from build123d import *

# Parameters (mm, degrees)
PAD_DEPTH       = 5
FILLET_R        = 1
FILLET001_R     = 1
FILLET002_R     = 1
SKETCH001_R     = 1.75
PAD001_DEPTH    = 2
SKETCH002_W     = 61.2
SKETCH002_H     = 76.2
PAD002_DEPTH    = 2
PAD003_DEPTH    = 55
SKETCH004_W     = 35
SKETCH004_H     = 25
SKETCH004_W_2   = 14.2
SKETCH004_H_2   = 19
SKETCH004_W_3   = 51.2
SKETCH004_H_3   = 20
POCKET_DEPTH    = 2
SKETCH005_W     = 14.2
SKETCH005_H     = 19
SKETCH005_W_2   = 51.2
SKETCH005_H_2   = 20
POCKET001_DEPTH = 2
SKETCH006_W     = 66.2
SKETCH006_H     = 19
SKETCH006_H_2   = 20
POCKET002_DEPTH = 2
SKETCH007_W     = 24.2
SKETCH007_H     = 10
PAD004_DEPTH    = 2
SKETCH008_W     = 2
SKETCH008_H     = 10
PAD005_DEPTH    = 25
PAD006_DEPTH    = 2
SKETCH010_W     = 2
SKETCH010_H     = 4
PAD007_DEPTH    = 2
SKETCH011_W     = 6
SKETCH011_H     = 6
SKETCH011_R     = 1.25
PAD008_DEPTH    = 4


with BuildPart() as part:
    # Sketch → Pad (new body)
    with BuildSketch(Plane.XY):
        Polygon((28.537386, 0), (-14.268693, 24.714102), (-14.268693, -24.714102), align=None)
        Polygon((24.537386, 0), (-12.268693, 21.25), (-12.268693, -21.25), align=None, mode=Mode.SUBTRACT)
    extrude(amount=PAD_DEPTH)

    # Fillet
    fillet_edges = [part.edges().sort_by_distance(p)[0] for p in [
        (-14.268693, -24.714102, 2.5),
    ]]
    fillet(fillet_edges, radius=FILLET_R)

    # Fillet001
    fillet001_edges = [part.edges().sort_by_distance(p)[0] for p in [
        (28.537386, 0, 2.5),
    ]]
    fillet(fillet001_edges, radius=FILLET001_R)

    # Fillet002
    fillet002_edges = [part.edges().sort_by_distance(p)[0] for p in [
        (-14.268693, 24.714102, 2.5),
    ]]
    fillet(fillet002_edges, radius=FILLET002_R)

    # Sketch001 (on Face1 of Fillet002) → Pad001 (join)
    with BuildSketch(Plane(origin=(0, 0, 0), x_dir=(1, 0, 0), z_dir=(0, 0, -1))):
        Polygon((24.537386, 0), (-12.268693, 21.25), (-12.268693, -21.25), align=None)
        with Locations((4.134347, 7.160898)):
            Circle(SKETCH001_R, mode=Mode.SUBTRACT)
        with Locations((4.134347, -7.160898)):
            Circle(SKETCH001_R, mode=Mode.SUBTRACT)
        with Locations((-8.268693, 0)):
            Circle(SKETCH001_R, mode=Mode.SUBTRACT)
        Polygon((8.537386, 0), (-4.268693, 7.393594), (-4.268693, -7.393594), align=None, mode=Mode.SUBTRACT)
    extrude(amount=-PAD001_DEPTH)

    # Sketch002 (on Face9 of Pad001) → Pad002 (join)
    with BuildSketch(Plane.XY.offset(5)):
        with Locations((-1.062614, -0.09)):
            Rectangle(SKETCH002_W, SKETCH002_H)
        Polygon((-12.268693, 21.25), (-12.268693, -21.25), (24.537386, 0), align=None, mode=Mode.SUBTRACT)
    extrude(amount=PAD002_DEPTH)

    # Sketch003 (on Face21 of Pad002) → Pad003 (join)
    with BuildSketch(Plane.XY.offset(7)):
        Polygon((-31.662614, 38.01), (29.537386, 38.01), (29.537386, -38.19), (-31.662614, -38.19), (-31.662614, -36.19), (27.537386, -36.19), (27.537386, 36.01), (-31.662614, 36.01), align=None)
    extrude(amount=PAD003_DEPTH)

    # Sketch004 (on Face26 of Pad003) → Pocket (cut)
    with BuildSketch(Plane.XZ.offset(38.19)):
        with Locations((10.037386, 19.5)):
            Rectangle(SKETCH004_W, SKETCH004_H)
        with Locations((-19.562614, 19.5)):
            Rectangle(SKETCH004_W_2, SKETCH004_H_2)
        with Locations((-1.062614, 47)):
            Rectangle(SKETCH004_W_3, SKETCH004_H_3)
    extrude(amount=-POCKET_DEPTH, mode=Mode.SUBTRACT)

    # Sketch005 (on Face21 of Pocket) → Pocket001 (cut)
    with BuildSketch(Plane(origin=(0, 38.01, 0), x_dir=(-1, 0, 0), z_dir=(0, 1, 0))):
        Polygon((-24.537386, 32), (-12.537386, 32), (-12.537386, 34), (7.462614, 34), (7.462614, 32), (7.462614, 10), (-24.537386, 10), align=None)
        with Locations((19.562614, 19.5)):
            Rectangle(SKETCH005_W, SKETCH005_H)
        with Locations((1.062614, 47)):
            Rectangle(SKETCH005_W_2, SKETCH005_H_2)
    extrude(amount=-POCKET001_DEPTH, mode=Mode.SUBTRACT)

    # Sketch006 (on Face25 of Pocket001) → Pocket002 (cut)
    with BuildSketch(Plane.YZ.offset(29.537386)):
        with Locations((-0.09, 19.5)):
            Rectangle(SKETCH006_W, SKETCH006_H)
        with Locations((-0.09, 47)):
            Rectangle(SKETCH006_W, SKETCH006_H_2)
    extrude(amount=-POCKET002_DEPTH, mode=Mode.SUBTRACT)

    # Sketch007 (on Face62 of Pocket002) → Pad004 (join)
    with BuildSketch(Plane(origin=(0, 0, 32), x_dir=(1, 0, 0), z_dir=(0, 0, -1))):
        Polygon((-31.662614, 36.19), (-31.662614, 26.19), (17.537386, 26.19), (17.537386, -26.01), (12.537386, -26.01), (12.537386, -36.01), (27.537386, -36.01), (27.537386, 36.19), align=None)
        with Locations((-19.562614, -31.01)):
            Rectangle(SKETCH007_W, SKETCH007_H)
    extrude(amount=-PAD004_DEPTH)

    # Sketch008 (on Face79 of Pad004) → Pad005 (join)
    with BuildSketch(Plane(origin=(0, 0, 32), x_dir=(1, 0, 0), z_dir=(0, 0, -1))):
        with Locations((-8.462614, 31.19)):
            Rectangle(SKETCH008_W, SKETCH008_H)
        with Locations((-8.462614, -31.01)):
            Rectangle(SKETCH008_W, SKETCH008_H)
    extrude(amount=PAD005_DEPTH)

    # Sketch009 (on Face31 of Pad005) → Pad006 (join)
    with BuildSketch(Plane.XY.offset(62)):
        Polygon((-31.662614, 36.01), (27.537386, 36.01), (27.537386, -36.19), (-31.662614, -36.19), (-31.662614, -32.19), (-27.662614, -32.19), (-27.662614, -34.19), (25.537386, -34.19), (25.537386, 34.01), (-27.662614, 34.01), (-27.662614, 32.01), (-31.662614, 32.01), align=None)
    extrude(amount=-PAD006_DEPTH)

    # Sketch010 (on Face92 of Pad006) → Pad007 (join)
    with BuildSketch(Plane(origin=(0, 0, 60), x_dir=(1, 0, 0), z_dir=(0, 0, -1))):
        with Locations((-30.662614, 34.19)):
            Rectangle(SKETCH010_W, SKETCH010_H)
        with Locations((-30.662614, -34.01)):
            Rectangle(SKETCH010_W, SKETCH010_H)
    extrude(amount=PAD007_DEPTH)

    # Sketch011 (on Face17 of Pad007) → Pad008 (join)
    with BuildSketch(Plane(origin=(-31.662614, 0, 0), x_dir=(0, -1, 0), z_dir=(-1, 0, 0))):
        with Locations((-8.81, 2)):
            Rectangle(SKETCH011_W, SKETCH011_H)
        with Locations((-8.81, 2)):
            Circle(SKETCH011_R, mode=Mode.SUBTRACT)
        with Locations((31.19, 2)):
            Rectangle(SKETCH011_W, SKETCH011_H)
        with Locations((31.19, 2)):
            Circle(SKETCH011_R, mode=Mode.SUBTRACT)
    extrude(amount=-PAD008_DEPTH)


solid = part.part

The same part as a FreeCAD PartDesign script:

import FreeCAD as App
import Part
import Sketcher
from FreeCAD import Vector
Q = App.Units.Quantity


def edges_at(feature, points):
    """Names of the edges that pass closest to the given points."""
    edges = feature.Shape.Edges
    near = lambda p: min(range(len(edges)), key=lambda i: edges[i].distToShape(Part.Vertex(*p))[0])
    return sorted({f"Edge{near(p) + 1}" for p in points})

doc = App.newDocument("Part")
body = doc.addObject("PartDesign::Body", "Body")

# Sketch on XY plane
sketch1 = doc.addObject("Sketcher::SketchObject", "Sketch")
body.addObject(sketch1)
sketch1.AttachmentSupport = (doc.XY_Plane, [""])
sketch1.MapMode = "FlatFace"
sketch1.addGeometry(Part.LineSegment(Vector(29, 0, 0), Vector(-14, 25, 0)), False)
sketch1.addGeometry(Part.LineSegment(Vector(-14, 25, 0), Vector(-14, -25, 0)), False)
sketch1.addGeometry(Part.LineSegment(Vector(-14, -25, 0), Vector(29, 0, 0)), False)
sketch1.addGeometry(Part.LineSegment(Vector(-12, 21, 0), Vector(25, 0, 0)), False)
sketch1.addGeometry(Part.LineSegment(Vector(25, 0, 0), Vector(-12, -21, 0)), False)
sketch1.addGeometry(Part.LineSegment(Vector(-12, -21, 0), Vector(-12, 21, 0)), False)
sketch1.addConstraint(Sketcher.Constraint("Coincident", 0, 2, 1, 1))
sketch1.addConstraint(Sketcher.Constraint("Coincident", 1, 2, 2, 1))
sketch1.addConstraint(Sketcher.Constraint("Coincident", 2, 2, 0, 1))
sketch1.addConstraint(Sketcher.Constraint("Coincident", 3, 2, 4, 1))
sketch1.addConstraint(Sketcher.Constraint("Coincident", 4, 2, 5, 1))
sketch1.addConstraint(Sketcher.Constraint("Coincident", 5, 2, 3, 1))
sketch1.addConstraint(Sketcher.Constraint("Vertical", 1))
sketch1.addConstraint(Sketcher.Constraint("Vertical", 5))
sketch1.addConstraint(Sketcher.Constraint("PointOnObject", 2, 2, -1))
sketch1.addConstraint(Sketcher.Constraint("PointOnObject", 3, 2, -1))
sketch1.addConstraint(Sketcher.Constraint("Parallel", 0, 3))
sketch1.addConstraint(Sketcher.Constraint("Parallel", 2, 4))
sketch1.addConstraint(Sketcher.Constraint("Equal", 0, 2))
sketch1.addConstraint(Sketcher.Constraint("Angle", 0, Q("149.999999 deg")))
sketch1.addConstraint(Sketcher.Constraint("DistanceY", 5, 1, 5, 2, Q("42.5 mm")))
sketch1.addConstraint(Sketcher.Constraint("DistanceX", 3, 2, 2, 2, Q("4 mm")))
sketch1.addConstraint(Sketcher.Constraint("DistanceX", 1, 2, 4, 2, Q("2 mm")))
sketch1.addConstraint(Sketcher.Constraint("DistanceX", 0, 2, -1, 1, Q("14.268693 mm")))
pad1 = doc.addObject("PartDesign::Pad", "Pad")
body.addObject(pad1)
pad1.Profile = sketch1
pad1.Length = 5
doc.recompute()

fillet = doc.addObject("PartDesign::Fillet", "Fillet")
body.addObject(fillet)
fillet.Base = (pad1, edges_at(pad1, [(-14.269, -24.714, 2.5)]))
fillet.Radius = 1
doc.recompute()

fillet2 = doc.addObject("PartDesign::Fillet", "Fillet001")
body.addObject(fillet2)
fillet2.Base = (fillet, edges_at(fillet, [(28.537, 0, 2.5)]))
fillet2.Radius = 1
doc.recompute()

fillet3 = doc.addObject("PartDesign::Fillet", "Fillet002")
body.addObject(fillet3)
fillet3.Base = (fillet2, edges_at(fillet2, [(-14.269, 24.714, 2.5)]))
fillet3.Radius = 1

# Sketch on XY plane
sketch2 = doc.addObject("Sketcher::SketchObject", "Sketch001")
body.addObject(sketch2)
sketch2.AttachmentSupport = (doc.XY_Plane, [""])
sketch2.MapMode = "FlatFace"
sketch2.addGeometry(Part.LineSegment(Vector(24.5, 0, 0), Vector(-12.3, -21.2, 0)), False)
sketch2.addGeometry(Part.LineSegment(Vector(-12.3, -21.2, 0), Vector(-12.3, 21.2, 0)), False)
sketch2.addGeometry(Part.LineSegment(Vector(-12.3, 21.2, 0), Vector(24.5, 0, 0)), False)
sketch2.addGeometry(Part.Circle(Vector(4.1, 7.2, 0), Vector(0, 0, 1), 1.8), False)
sketch2.addGeometry(Part.Circle(Vector(-8.3, 0, 0), Vector(0, 0, 1), 1.8), False)
sketch2.addGeometry(Part.LineSegment(Vector(-4.3, -7.4, 0), Vector(8.5, 0, 0)), False)
sketch2.addGeometry(Part.LineSegment(Vector(8.5, 0, 0), Vector(-4.3, 7.4, 0)), False)
sketch2.addGeometry(Part.LineSegment(Vector(-4.3, 7.4, 0), Vector(-4.3, -7.4, 0)), False)
sketch2.addGeometry(Part.Circle(Vector(4.1, -7.2, 0), Vector(0, 0, 1), 1.8), False)
sketch2.addConstraint(Sketcher.Constraint("Coincident", 0, 2, 1, 1))
sketch2.addConstraint(Sketcher.Constraint("Coincident", 1, 2, 2, 1))
sketch2.addConstraint(Sketcher.Constraint("Coincident", 2, 2, 0, 1))
sketch2.addConstraint(Sketcher.Constraint("Coincident", 5, 2, 6, 1))
sketch2.addConstraint(Sketcher.Constraint("Coincident", 6, 2, 7, 1))
sketch2.addConstraint(Sketcher.Constraint("Coincident", 7, 2, 5, 1))
sketch2.addConstraint(Sketcher.Constraint("Vertical", 1))
sketch2.addConstraint(Sketcher.Constraint("Vertical", 7))
sketch2.addConstraint(Sketcher.Constraint("Equal", 3, 4))
sketch2.addConstraint(Sketcher.Constraint("Equal", 4, 8))
sketch2.addConstraint(Sketcher.Constraint("Symmetric", 3, 3, 8, 3, -1))
sketch2.addConstraint(Sketcher.Constraint("PointOnObject", 4, 3, -1))
sketch2.addConstraint(Sketcher.Constraint("PointOnObject", 2, 2, -1))
sketch2.addConstraint(Sketcher.Constraint("PointOnObject", 5, 2, -1))
sketch2.addConstraint(Sketcher.Constraint("Parallel", 0, 5))
sketch2.addConstraint(Sketcher.Constraint("Parallel", 2, 6))
sketch2.addConstraint(Sketcher.Constraint("Equal", 0, 2))
sketch2.addConstraint(Sketcher.Constraint("Diameter", 3, Q("3.5 mm")))
sketch2.addConstraint(Sketcher.Constraint("Angle", 0, Q("-150 deg")))
sketch2.addConstraint(Sketcher.Constraint("DistanceY", 1, 1, 1, 2, Q("42.5 mm")))
sketch2.addConstraint(Sketcher.Constraint("DistanceX", 0, 2, 4, 3, Q("4 mm")))
sketch2.addConstraint(Sketcher.Constraint("DistanceX", 5, 2, 2, 2, Q("16 mm")))
sketch2.addConstraint(Sketcher.Constraint("DistanceX", 4, 3, 6, 2, Q("4 mm")))
sketch2.addConstraint(Sketcher.Constraint("DistanceY", -1, 1, 3, 3, Q("7.160898 mm")))
sketch2.addConstraint(Sketcher.Constraint("DistanceX", 4, 3, 3, 3, Q("12.40304 mm")))
sketch2.addConstraint(Sketcher.Constraint("DistanceX", -1, 1, 3, 3, Q("4.134347 mm")))
pad2 = doc.addObject("PartDesign::Pad", "Pad001")
body.addObject(pad2)
pad2.Profile = sketch2
pad2.Length = 2

# Sketch on XY plane
sketch3 = doc.addObject("Sketcher::SketchObject", "Sketch002")
body.addObject(sketch3)
sketch3.AttachmentSupport = (doc.XY_Plane, [""])
sketch3.MapMode = "FlatFace"
sketch3.AttachmentOffset = App.Placement(Vector(0, 0, 5), App.Rotation())
sketch3.addGeometry(Part.LineSegment(Vector(-32, 38, 0), Vector(-32, -38, 0)), False)
sketch3.addGeometry(Part.LineSegment(Vector(-32, -38, 0), Vector(30, -38, 0)), False)
sketch3.addGeometry(Part.LineSegment(Vector(30, -38, 0), Vector(30, 38, 0)), False)
sketch3.addGeometry(Part.LineSegment(Vector(30, 38, 0), Vector(-32, 38, 0)), False)
sketch3.addGeometry(Part.LineSegment(Vector(-12, -21, 0), Vector(-12, 21, 0)), False)
sketch3.addGeometry(Part.LineSegment(Vector(-12, 21, 0), Vector(25, 0, 0)), False)
sketch3.addGeometry(Part.LineSegment(Vector(25, 0, 0), Vector(-12, -21, 0)), False)
sketch3.addConstraint(Sketcher.Constraint("Coincident", 0, 2, 1, 1))
sketch3.addConstraint(Sketcher.Constraint("Coincident", 1, 2, 2, 1))
sketch3.addConstraint(Sketcher.Constraint("Coincident", 2, 2, 3, 1))
sketch3.addConstraint(Sketcher.Constraint("Coincident", 3, 2, 0, 1))
sketch3.addConstraint(Sketcher.Constraint("Coincident", 4, 2, 5, 1))
sketch3.addConstraint(Sketcher.Constraint("Coincident", 5, 2, 6, 1))
sketch3.addConstraint(Sketcher.Constraint("Coincident", 6, 2, 4, 1))
sketch3.addConstraint(Sketcher.Constraint("Vertical", 0))
sketch3.addConstraint(Sketcher.Constraint("Horizontal", 1))
sketch3.addConstraint(Sketcher.Constraint("Vertical", 2))
sketch3.addConstraint(Sketcher.Constraint("Horizontal", 3))
sketch3.addConstraint(Sketcher.Constraint("Vertical", 4))
sketch3.addConstraint(Sketcher.Constraint("PointOnObject", 5, 2, -1))
sketch3.addConstraint(Sketcher.Constraint("Equal", 5, 6))
sketch3.addConstraint(Sketcher.Constraint("Angle", 5, Q("-30 deg")))
sketch3.addConstraint(Sketcher.Constraint("DistanceX", 1, 1, 1, 2, Q("61.2 mm")))
sketch3.addConstraint(Sketcher.Constraint("DistanceY", 0, 2, 0, 1, Q("76.2 mm")))
sketch3.addConstraint(Sketcher.Constraint("DistanceY", 4, 1, 4, 2, Q("42.5 mm")))
sketch3.addConstraint(Sketcher.Constraint("DistanceX", 5, 2, 2, 2, Q("5 mm")))
sketch3.addConstraint(Sketcher.Constraint("DistanceY", 0, 2, -1, 1, Q("38.19 mm")))
sketch3.addConstraint(Sketcher.Constraint("DistanceX", 0, 2, -1, 1, Q("31.662614 mm")))
pad3 = doc.addObject("PartDesign::Pad", "Pad002")
body.addObject(pad3)
pad3.Profile = sketch3
pad3.Length = 2

# Sketch on XY plane
sketch4 = doc.addObject("Sketcher::SketchObject", "Sketch003")
body.addObject(sketch4)
sketch4.AttachmentSupport = (doc.XY_Plane, [""])
sketch4.MapMode = "FlatFace"
sketch4.AttachmentOffset = App.Placement(Vector(0, 0, 7), App.Rotation())
sketch4.addGeometry(Part.LineSegment(Vector(29.5, 38, 0), Vector(-31.7, 38, 0)), False)
sketch4.addGeometry(Part.LineSegment(Vector(-31.7, 38, 0), Vector(-31.7, 36, 0)), False)
sketch4.addGeometry(Part.LineSegment(Vector(-31.7, 36, 0), Vector(27.5, 36, 0)), False)
sketch4.addGeometry(Part.LineSegment(Vector(27.5, 36, 0), Vector(27.5, -36.2, 0)), False)
sketch4.addGeometry(Part.LineSegment(Vector(27.5, -36.2, 0), Vector(-31.7, -36.2, 0)), False)
sketch4.addGeometry(Part.LineSegment(Vector(-31.7, -36.2, 0), Vector(-31.7, -38.2, 0)), False)
sketch4.addGeometry(Part.LineSegment(Vector(-31.7, -38.2, 0), Vector(29.5, -38.2, 0)), False)
sketch4.addGeometry(Part.LineSegment(Vector(29.5, -38.2, 0), Vector(29.5, 38, 0)), False)
sketch4.addConstraint(Sketcher.Constraint("Coincident", 0, 2, 1, 1))
sketch4.addConstraint(Sketcher.Constraint("Coincident", 1, 2, 2, 1))
sketch4.addConstraint(Sketcher.Constraint("Coincident", 2, 2, 3, 1))
sketch4.addConstraint(Sketcher.Constraint("Coincident", 3, 2, 4, 1))
sketch4.addConstraint(Sketcher.Constraint("Coincident", 4, 2, 5, 1))
sketch4.addConstraint(Sketcher.Constraint("Coincident", 5, 2, 6, 1))
sketch4.addConstraint(Sketcher.Constraint("Coincident", 6, 2, 7, 1))
sketch4.addConstraint(Sketcher.Constraint("Coincident", 7, 2, 0, 1))
sketch4.addConstraint(Sketcher.Constraint("Horizontal", 0))
sketch4.addConstraint(Sketcher.Constraint("Vertical", 1))
sketch4.addConstraint(Sketcher.Constraint("Horizontal", 2))
sketch4.addConstraint(Sketcher.Constraint("Vertical", 3))
sketch4.addConstraint(Sketcher.Constraint("Horizontal", 4))
sketch4.addConstraint(Sketcher.Constraint("Vertical", 5))
sketch4.addConstraint(Sketcher.Constraint("Horizontal", 6))
sketch4.addConstraint(Sketcher.Constraint("Vertical", 7))
sketch4.addConstraint(Sketcher.Constraint("Vertical", 1, 2, 4, 2))
sketch4.addConstraint(Sketcher.Constraint("Equal", 1, 5))
sketch4.addConstraint(Sketcher.Constraint("DistanceY", 1, 2, 1, 1, Q("2 mm")))
sketch4.addConstraint(Sketcher.Constraint("DistanceX", 0, 2, 0, 1, Q("61.2 mm")))
sketch4.addConstraint(Sketcher.Constraint("DistanceX", 2, 1, 2, 2, Q("59.2 mm")))
sketch4.addConstraint(Sketcher.Constraint("DistanceY", 3, 2, 3, 1, Q("72.2 mm")))
sketch4.addConstraint(Sketcher.Constraint("DistanceY", -1, 1, 0, 2, Q("38.01 mm")))
sketch4.addConstraint(Sketcher.Constraint("DistanceX", 0, 2, -1, 1, Q("31.662614 mm")))
pad4 = doc.addObject("PartDesign::Pad", "Pad003")
body.addObject(pad4)
pad4.Profile = sketch4
pad4.Length = 55

# Sketch on XZ plane
sketch5 = doc.addObject("Sketcher::SketchObject", "Sketch004")
body.addObject(sketch5)
sketch5.AttachmentSupport = (doc.XZ_Plane, [""])
sketch5.MapMode = "FlatFace"
sketch5.AttachmentOffset = App.Placement(Vector(0, 0, 38.19), App.Rotation())
sketch5.addGeometry(Part.LineSegment(Vector(-7, 32, 0), Vector(-7, 7, 0)), False)
sketch5.addGeometry(Part.LineSegment(Vector(-7, 7, 0), Vector(28, 7, 0)), False)
sketch5.addGeometry(Part.LineSegment(Vector(28, 7, 0), Vector(28, 32, 0)), False)
sketch5.addGeometry(Part.LineSegment(Vector(28, 32, 0), Vector(-7, 32, 0)), False)
sketch5.addGeometry(Part.LineSegment(Vector(-27, 29, 0), Vector(-27, 10, 0)), False)
sketch5.addGeometry(Part.LineSegment(Vector(-27, 10, 0), Vector(-12, 10, 0)), False)
sketch5.addGeometry(Part.LineSegment(Vector(-12, 10, 0), Vector(-12, 29, 0)), False)
sketch5.addGeometry(Part.LineSegment(Vector(-12, 29, 0), Vector(-27, 29, 0)), False)
sketch5.addGeometry(Part.LineSegment(Vector(-27, 57, 0), Vector(-27, 37, 0)), False)
sketch5.addGeometry(Part.LineSegment(Vector(-27, 37, 0), Vector(25, 37, 0)), False)
sketch5.addGeometry(Part.LineSegment(Vector(25, 37, 0), Vector(25, 57, 0)), False)
sketch5.addGeometry(Part.LineSegment(Vector(25, 57, 0), Vector(-27, 57, 0)), False)
sketch5.addConstraint(Sketcher.Constraint("Coincident", 0, 2, 1, 1))
sketch5.addConstraint(Sketcher.Constraint("Coincident", 1, 2, 2, 1))
sketch5.addConstraint(Sketcher.Constraint("Coincident", 2, 2, 3, 1))
sketch5.addConstraint(Sketcher.Constraint("Coincident", 3, 2, 0, 1))
sketch5.addConstraint(Sketcher.Constraint("Coincident", 4, 2, 5, 1))
sketch5.addConstraint(Sketcher.Constraint("Coincident", 5, 2, 6, 1))
sketch5.addConstraint(Sketcher.Constraint("Coincident", 6, 2, 7, 1))
sketch5.addConstraint(Sketcher.Constraint("Coincident", 7, 2, 4, 1))
sketch5.addConstraint(Sketcher.Constraint("Coincident", 8, 2, 9, 1))
sketch5.addConstraint(Sketcher.Constraint("Coincident", 9, 2, 10, 1))
sketch5.addConstraint(Sketcher.Constraint("Coincident", 10, 2, 11, 1))
sketch5.addConstraint(Sketcher.Constraint("Coincident", 11, 2, 8, 1))
sketch5.addConstraint(Sketcher.Constraint("Vertical", 0))
sketch5.addConstraint(Sketcher.Constraint("Horizontal", 1))
sketch5.addConstraint(Sketcher.Constraint("Vertical", 2))
sketch5.addConstraint(Sketcher.Constraint("Horizontal", 3))
sketch5.addConstraint(Sketcher.Constraint("Vertical", 4))
sketch5.addConstraint(Sketcher.Constraint("Horizontal", 5))
sketch5.addConstraint(Sketcher.Constraint("Vertical", 6))
sketch5.addConstraint(Sketcher.Constraint("Horizontal", 7))
sketch5.addConstraint(Sketcher.Constraint("Vertical", 8))
sketch5.addConstraint(Sketcher.Constraint("Horizontal", 9))
sketch5.addConstraint(Sketcher.Constraint("Vertical", 10))
sketch5.addConstraint(Sketcher.Constraint("Horizontal", 11))
sketch5.addConstraint(Sketcher.Constraint("Vertical", 7, 2, 8, 2))
sketch5.addConstraint(Sketcher.Constraint("DistanceX", 1, 1, 1, 2, Q("35 mm")))
sketch5.addConstraint(Sketcher.Constraint("DistanceY", 0, 2, 0, 1, Q("25 mm")))
sketch5.addConstraint(Sketcher.Constraint("DistanceY", 4, 2, 4, 1, Q("19 mm")))
sketch5.addConstraint(Sketcher.Constraint("DistanceY", 8, 2, 8, 1, Q("20 mm")))
sketch5.addConstraint(Sketcher.Constraint("DistanceX", 5, 1, 5, 2, Q("14.2 mm")))
sketch5.addConstraint(Sketcher.Constraint("DistanceX", 9, 1, 9, 2, Q("51.2 mm")))
sketch5.addConstraint(Sketcher.Constraint("DistanceY", -1, 1, 0, 2, Q("7 mm")))
sketch5.addConstraint(Sketcher.Constraint("DistanceY", -1, 1, 4, 2, Q("10 mm")))
sketch5.addConstraint(Sketcher.Constraint("DistanceY", -1, 1, 8, 2, Q("37 mm")))
sketch5.addConstraint(Sketcher.Constraint("DistanceX", 5, 2, 0, 2, Q("5 mm")))
sketch5.addConstraint(Sketcher.Constraint("DistanceX", 0, 2, -1, 1, Q("7.462614 mm")))
pocket1 = doc.addObject("PartDesign::Pocket", "Pocket")
body.addObject(pocket1)
pocket1.Profile = sketch5
pocket1.Length = 2

# Sketch on XZ plane
sketch6 = doc.addObject("Sketcher::SketchObject", "Sketch005")
body.addObject(sketch6)
sketch6.AttachmentSupport = (doc.XZ_Plane, [""])
sketch6.MapMode = "FlatFace"
sketch6.AttachmentOffset = App.Placement(Vector(0, 0, -38.01), App.Rotation())
sketch6.addGeometry(Part.LineSegment(Vector(12.5, 32, 0), Vector(24.5, 32, 0)), False)
sketch6.addGeometry(Part.LineSegment(Vector(24.5, 32, 0), Vector(24.5, 10, 0)), False)
sketch6.addGeometry(Part.LineSegment(Vector(24.5, 10, 0), Vector(-7.5, 10, 0)), False)
sketch6.addGeometry(Part.LineSegment(Vector(-7.5, 10, 0), Vector(-7.5, 34, 0)), False)
sketch6.addGeometry(Part.LineSegment(Vector(-7.5, 34, 0), Vector(12.5, 34, 0)), False)
sketch6.addGeometry(Part.LineSegment(Vector(12.5, 34, 0), Vector(12.5, 32, 0)), False)
sketch6.addGeometry(Part.LineSegment(Vector(-12.5, 29, 0), Vector(-12.5, 10, 0)), False)
sketch6.addGeometry(Part.LineSegment(Vector(-12.5, 10, 0), Vector(-26.7, 10, 0)), False)
sketch6.addGeometry(Part.LineSegment(Vector(-26.7, 10, 0), Vector(-26.7, 29, 0)), False)
sketch6.addGeometry(Part.LineSegment(Vector(-26.7, 29, 0), Vector(-12.5, 29, 0)), False)
sketch6.addGeometry(Part.LineSegment(Vector(24.5, 57, 0), Vector(24.5, 37, 0)), False)
sketch6.addGeometry(Part.LineSegment(Vector(24.5, 37, 0), Vector(-26.7, 37, 0)), False)
sketch6.addGeometry(Part.LineSegment(Vector(-26.7, 37, 0), Vector(-26.7, 57, 0)), False)
sketch6.addGeometry(Part.LineSegment(Vector(-26.7, 57, 0), Vector(24.5, 57, 0)), False)
sketch6.addConstraint(Sketcher.Constraint("Coincident", 0, 2, 1, 1))
sketch6.addConstraint(Sketcher.Constraint("Coincident", 1, 2, 2, 1))
sketch6.addConstraint(Sketcher.Constraint("Coincident", 2, 2, 3, 1))
sketch6.addConstraint(Sketcher.Constraint("Coincident", 3, 2, 4, 1))
sketch6.addConstraint(Sketcher.Constraint("Coincident", 4, 2, 5, 1))
sketch6.addConstraint(Sketcher.Constraint("Coincident", 5, 2, 0, 1))
sketch6.addConstraint(Sketcher.Constraint("Coincident", 6, 2, 7, 1))
sketch6.addConstraint(Sketcher.Constraint("Coincident", 7, 2, 8, 1))
sketch6.addConstraint(Sketcher.Constraint("Coincident", 8, 2, 9, 1))
sketch6.addConstraint(Sketcher.Constraint("Coincident", 9, 2, 6, 1))
sketch6.addConstraint(Sketcher.Constraint("Coincident", 10, 2, 11, 1))
sketch6.addConstraint(Sketcher.Constraint("Coincident", 11, 2, 12, 1))
sketch6.addConstraint(Sketcher.Constraint("Coincident", 12, 2, 13, 1))
sketch6.addConstraint(Sketcher.Constraint("Coincident", 13, 2, 10, 1))
sketch6.addConstraint(Sketcher.Constraint("Horizontal", 0))
sketch6.addConstraint(Sketcher.Constraint("Vertical", 1))
sketch6.addConstraint(Sketcher.Constraint("Horizontal", 2))
sketch6.addConstraint(Sketcher.Constraint("Vertical", 3))
sketch6.addConstraint(Sketcher.Constraint("Horizontal", 4))
sketch6.addConstraint(Sketcher.Constraint("Vertical", 5))
sketch6.addConstraint(Sketcher.Constraint("Vertical", 6))
sketch6.addConstraint(Sketcher.Constraint("Horizontal", 7))
sketch6.addConstraint(Sketcher.Constraint("Vertical", 8))
sketch6.addConstraint(Sketcher.Constraint("Horizontal", 9))
sketch6.addConstraint(Sketcher.Constraint("Vertical", 10))
sketch6.addConstraint(Sketcher.Constraint("Horizontal", 11))
sketch6.addConstraint(Sketcher.Constraint("Vertical", 12))
sketch6.addConstraint(Sketcher.Constraint("Horizontal", 13))
sketch6.addConstraint(Sketcher.Constraint("Horizontal", 2, 2, 6, 2))
sketch6.addConstraint(Sketcher.Constraint("Vertical", 1, 2, 10, 2))
sketch6.addConstraint(Sketcher.Constraint("Vertical", 8, 2, 11, 2))
sketch6.addConstraint(Sketcher.Constraint("Equal", 4, 10))
sketch6.addConstraint(Sketcher.Constraint("DistanceX", 0, 1, 0, 2, Q("12 mm")))
sketch6.addConstraint(Sketcher.Constraint("DistanceX", 2, 2, 2, 1, Q("32 mm")))
sketch6.addConstraint(Sketcher.Constraint("DistanceY", 1, 2, 1, 1, Q("22 mm")))
sketch6.addConstraint(Sketcher.Constraint("DistanceY", 3, 1, 3, 2, Q("24 mm")))
sketch6.addConstraint(Sketcher.Constraint("DistanceY", 6, 2, 6, 1, Q("19 mm")))
sketch6.addConstraint(Sketcher.Constraint("DistanceX", 7, 2, 7, 1, Q("14.2 mm")))
sketch6.addConstraint(Sketcher.Constraint("DistanceX", 11, 2, 11, 1, Q("51.2 mm")))
sketch6.addConstraint(Sketcher.Constraint("DistanceY", -1, 1, 0, 2, Q("32 mm")))
sketch6.addConstraint(Sketcher.Constraint("DistanceY", -1, 1, 10, 2, Q("37 mm")))
sketch6.addConstraint(Sketcher.Constraint("DistanceX", -1, 1, 0, 2, Q("24.537386 mm")))
pocket2 = doc.addObject("PartDesign::Pocket", "Pocket001")
body.addObject(pocket2)
pocket2.Profile = sketch6
pocket2.Length = 2
pocket2.Reversed = True

# Sketch on YZ plane
sketch7 = doc.addObject("Sketcher::SketchObject", "Sketch006")
body.addObject(sketch7)
sketch7.AttachmentSupport = (doc.YZ_Plane, [""])
sketch7.MapMode = "FlatFace"
sketch7.AttachmentOffset = App.Placement(Vector(0, 0, 29.537386), App.Rotation())
sketch7.addGeometry(Part.LineSegment(Vector(-33, 29, 0), Vector(-33, 10, 0)), False)
sketch7.addGeometry(Part.LineSegment(Vector(-33, 10, 0), Vector(33, 10, 0)), False)
sketch7.addGeometry(Part.LineSegment(Vector(33, 10, 0), Vector(33, 29, 0)), False)
sketch7.addGeometry(Part.LineSegment(Vector(33, 29, 0), Vector(-33, 29, 0)), False)
sketch7.addGeometry(Part.LineSegment(Vector(-33, 57, 0), Vector(-33, 37, 0)), False)
sketch7.addGeometry(Part.LineSegment(Vector(-33, 37, 0), Vector(33, 37, 0)), False)
sketch7.addGeometry(Part.LineSegment(Vector(33, 37, 0), Vector(33, 57, 0)), False)
sketch7.addGeometry(Part.LineSegment(Vector(33, 57, 0), Vector(-33, 57, 0)), False)
sketch7.addConstraint(Sketcher.Constraint("Coincident", 0, 2, 1, 1))
sketch7.addConstraint(Sketcher.Constraint("Coincident", 1, 2, 2, 1))
sketch7.addConstraint(Sketcher.Constraint("Coincident", 2, 2, 3, 1))
sketch7.addConstraint(Sketcher.Constraint("Coincident", 3, 2, 0, 1))
sketch7.addConstraint(Sketcher.Constraint("Coincident", 4, 2, 5, 1))
sketch7.addConstraint(Sketcher.Constraint("Coincident", 5, 2, 6, 1))
sketch7.addConstraint(Sketcher.Constraint("Coincident", 6, 2, 7, 1))
sketch7.addConstraint(Sketcher.Constraint("Coincident", 7, 2, 4, 1))
sketch7.addConstraint(Sketcher.Constraint("Vertical", 0))
sketch7.addConstraint(Sketcher.Constraint("Horizontal", 1))
sketch7.addConstraint(Sketcher.Constraint("Vertical", 2))
sketch7.addConstraint(Sketcher.Constraint("Horizontal", 3))
sketch7.addConstraint(Sketcher.Constraint("Vertical", 4))
sketch7.addConstraint(Sketcher.Constraint("Horizontal", 5))
sketch7.addConstraint(Sketcher.Constraint("Vertical", 6))
sketch7.addConstraint(Sketcher.Constraint("Horizontal", 7))
sketch7.addConstraint(Sketcher.Constraint("Vertical", 3, 2, 4, 2))
sketch7.addConstraint(Sketcher.Constraint("Vertical", 2, 2, 5, 2))
sketch7.addConstraint(Sketcher.Constraint("DistanceY", 0, 2, 0, 1, Q("19 mm")))
sketch7.addConstraint(Sketcher.Constraint("DistanceY", 4, 2, 4, 1, Q("20 mm")))
sketch7.addConstraint(Sketcher.Constraint("DistanceX", 1, 1, 1, 2, Q("66.2 mm")))
sketch7.addConstraint(Sketcher.Constraint("DistanceY", -1, 1, 0, 2, Q("10 mm")))
sketch7.addConstraint(Sketcher.Constraint("DistanceY", -1, 1, 4, 2, Q("37 mm")))
sketch7.addConstraint(Sketcher.Constraint("DistanceX", 0, 2, -1, 1, Q("33.19 mm")))
pocket3 = doc.addObject("PartDesign::Pocket", "Pocket002")
body.addObject(pocket3)
pocket3.Profile = sketch7
pocket3.Length = 2

# Sketch on XY plane
sketch8 = doc.addObject("Sketcher::SketchObject", "Sketch007")
body.addObject(sketch8)
sketch8.AttachmentSupport = (doc.XY_Plane, [""])
sketch8.MapMode = "FlatFace"
sketch8.AttachmentOffset = App.Placement(Vector(0, 0, 32), App.Rotation())
sketch8.addGeometry(Part.LineSegment(Vector(-32, -36, 0), Vector(-32, -26, 0)), False)
sketch8.addGeometry(Part.LineSegment(Vector(-32, -26, 0), Vector(18, -26, 0)), False)
sketch8.addGeometry(Part.LineSegment(Vector(18, -26, 0), Vector(18, 26, 0)), False)
sketch8.addGeometry(Part.LineSegment(Vector(18, 26, 0), Vector(13, 26, 0)), False)
sketch8.addGeometry(Part.LineSegment(Vector(13, 26, 0), Vector(13, 36, 0)), False)
sketch8.addGeometry(Part.LineSegment(Vector(13, 36, 0), Vector(28, 36, 0)), False)
sketch8.addGeometry(Part.LineSegment(Vector(28, 36, 0), Vector(28, -36, 0)), False)
sketch8.addGeometry(Part.LineSegment(Vector(28, -36, 0), Vector(-32, -36, 0)), False)
sketch8.addGeometry(Part.LineSegment(Vector(-32, 26, 0), Vector(-32, 36, 0)), False)
sketch8.addGeometry(Part.LineSegment(Vector(-32, 36, 0), Vector(-7, 36, 0)), False)
sketch8.addGeometry(Part.LineSegment(Vector(-7, 36, 0), Vector(-7, 26, 0)), False)
sketch8.addGeometry(Part.LineSegment(Vector(-7, 26, 0), Vector(-32, 26, 0)), False)
sketch8.addConstraint(Sketcher.Constraint("Coincident", 0, 2, 1, 1))
sketch8.addConstraint(Sketcher.Constraint("Coincident", 1, 2, 2, 1))
sketch8.addConstraint(Sketcher.Constraint("Coincident", 2, 2, 3, 1))
sketch8.addConstraint(Sketcher.Constraint("Coincident", 3, 2, 4, 1))
sketch8.addConstraint(Sketcher.Constraint("Coincident", 4, 2, 5, 1))
sketch8.addConstraint(Sketcher.Constraint("Coincident", 5, 2, 6, 1))
sketch8.addConstraint(Sketcher.Constraint("Coincident", 6, 2, 7, 1))
sketch8.addConstraint(Sketcher.Constraint("Coincident", 7, 2, 0, 1))
sketch8.addConstraint(Sketcher.Constraint("Coincident", 8, 2, 9, 1))
sketch8.addConstraint(Sketcher.Constraint("Coincident", 9, 2, 10, 1))
sketch8.addConstraint(Sketcher.Constraint("Coincident", 10, 2, 11, 1))
sketch8.addConstraint(Sketcher.Constraint("Coincident", 11, 2, 8, 1))
sketch8.addConstraint(Sketcher.Constraint("Vertical", 0))
sketch8.addConstraint(Sketcher.Constraint("Horizontal", 1))
sketch8.addConstraint(Sketcher.Constraint("Vertical", 2))
sketch8.addConstraint(Sketcher.Constraint("Horizontal", 3))
sketch8.addConstraint(Sketcher.Constraint("Vertical", 4))
sketch8.addConstraint(Sketcher.Constraint("Horizontal", 5))
sketch8.addConstraint(Sketcher.Constraint("Vertical", 6))
sketch8.addConstraint(Sketcher.Constraint("Horizontal", 7))
sketch8.addConstraint(Sketcher.Constraint("Vertical", 8))
sketch8.addConstraint(Sketcher.Constraint("Horizontal", 9))
sketch8.addConstraint(Sketcher.Constraint("Vertical", 10))
sketch8.addConstraint(Sketcher.Constraint("Horizontal", 11))
sketch8.addConstraint(Sketcher.Constraint("Horizontal", 5, 2, 8, 2))
sketch8.addConstraint(Sketcher.Constraint("Horizontal", 3, 2, 10, 2))
sketch8.addConstraint(Sketcher.Constraint("Vertical", 7, 2, 8, 2))
sketch8.addConstraint(Sketcher.Constraint("Equal", 0, 4))
sketch8.addConstraint(Sketcher.Constraint("DistanceX", 3, 2, 3, 1, Q("5 mm")))
sketch8.addConstraint(Sketcher.Constraint("DistanceX", 5, 1, 5, 2, Q("15 mm")))
sketch8.addConstraint(Sketcher.Constraint("DistanceY", 0, 1, 0, 2, Q("10 mm")))
sketch8.addConstraint(Sketcher.Constraint("DistanceX", 1, 1, 1, 2, Q("49.2 mm")))
sketch8.addConstraint(Sketcher.Constraint("DistanceX", 9, 1, 9, 2, Q("24.2 mm")))
sketch8.addConstraint(Sketcher.Constraint("DistanceY", 2, 1, 2, 2, Q("52.2 mm")))
sketch8.addConstraint(Sketcher.Constraint("DistanceY", 0, 2, -1, 1, Q("26.19 mm")))
sketch8.addConstraint(Sketcher.Constraint("DistanceX", 0, 2, -1, 1, Q("31.662614 mm")))
pad5 = doc.addObject("PartDesign::Pad", "Pad004")
body.addObject(pad5)
pad5.Profile = sketch8
pad5.Length = 2

# Sketch on XY plane
sketch9 = doc.addObject("Sketcher::SketchObject", "Sketch008")
body.addObject(sketch9)
sketch9.AttachmentSupport = (doc.XY_Plane, [""])
sketch9.MapMode = "FlatFace"
sketch9.AttachmentOffset = App.Placement(Vector(0, 0, 32), App.Rotation())
sketch9.addGeometry(Part.LineSegment(Vector(-9.5, -36.2, 0), Vector(-9.5, -26.2, 0)), False)
sketch9.addGeometry(Part.LineSegment(Vector(-9.5, -26.2, 0), Vector(-7.5, -26.2, 0)), False)
sketch9.addGeometry(Part.LineSegment(Vector(-7.5, -26.2, 0), Vector(-7.5, -36.2, 0)), False)
sketch9.addGeometry(Part.LineSegment(Vector(-7.5, -36.2, 0), Vector(-9.5, -36.2, 0)), False)
sketch9.addGeometry(Part.LineSegment(Vector(-9.5, 26, 0), Vector(-9.5, 36, 0)), False)
sketch9.addGeometry(Part.LineSegment(Vector(-9.5, 36, 0), Vector(-7.5, 36, 0)), False)
sketch9.addGeometry(Part.LineSegment(Vector(-7.5, 36, 0), Vector(-7.5, 26, 0)), False)
sketch9.addGeometry(Part.LineSegment(Vector(-7.5, 26, 0), Vector(-9.5, 26, 0)), False)
sketch9.addConstraint(Sketcher.Constraint("Coincident", 0, 2, 1, 1))
sketch9.addConstraint(Sketcher.Constraint("Coincident", 1, 2, 2, 1))
sketch9.addConstraint(Sketcher.Constraint("Coincident", 2, 2, 3, 1))
sketch9.addConstraint(Sketcher.Constraint("Coincident", 3, 2, 0, 1))
sketch9.addConstraint(Sketcher.Constraint("Coincident", 4, 2, 5, 1))
sketch9.addConstraint(Sketcher.Constraint("Coincident", 5, 2, 6, 1))
sketch9.addConstraint(Sketcher.Constraint("Coincident", 6, 2, 7, 1))
sketch9.addConstraint(Sketcher.Constraint("Coincident", 7, 2, 4, 1))
sketch9.addConstraint(Sketcher.Constraint("Vertical", 0))
sketch9.addConstraint(Sketcher.Constraint("Horizontal", 1))
sketch9.addConstraint(Sketcher.Constraint("Vertical", 2))
sketch9.addConstraint(Sketcher.Constraint("Horizontal", 3))
sketch9.addConstraint(Sketcher.Constraint("Vertical", 4))
sketch9.addConstraint(Sketcher.Constraint("Horizontal", 5))
sketch9.addConstraint(Sketcher.Constraint("Vertical", 6))
sketch9.addConstraint(Sketcher.Constraint("Horizontal", 7))
sketch9.addConstraint(Sketcher.Constraint("Vertical", 3, 2, 4, 2))
sketch9.addConstraint(Sketcher.Constraint("Vertical", 2, 2, 5, 2))
sketch9.addConstraint(Sketcher.Constraint("Equal", 2, 4))
sketch9.addConstraint(Sketcher.Constraint("DistanceX", 1, 1, 1, 2, Q("2 mm")))
sketch9.addConstraint(Sketcher.Constraint("DistanceY", 0, 1, 0, 2, Q("10 mm")))
sketch9.addConstraint(Sketcher.Constraint("DistanceY", 0, 2, 4, 2, Q("62.2 mm")))
sketch9.addConstraint(Sketcher.Constraint("DistanceY", 0, 2, -1, 1, Q("26.19 mm")))
sketch9.addConstraint(Sketcher.Constraint("DistanceX", 0, 2, -1, 1, Q("9.462614 mm")))
pad6 = doc.addObject("PartDesign::Pad", "Pad005")
body.addObject(pad6)
pad6.Profile = sketch9
pad6.Length = 25
pad6.Reversed = True

# Sketch on XY plane
sketch10 = doc.addObject("Sketcher::SketchObject", "Sketch009")
body.addObject(sketch10)
sketch10.AttachmentSupport = (doc.XY_Plane, [""])
sketch10.MapMode = "FlatFace"
sketch10.AttachmentOffset = App.Placement(Vector(0, 0, 62), App.Rotation())
sketch10.addGeometry(Part.LineSegment(Vector(27.5, 36, 0), Vector(-31.7, 36, 0)), False)
sketch10.addGeometry(Part.LineSegment(Vector(-31.7, 36, 0), Vector(-31.7, 32, 0)), False)
sketch10.addGeometry(Part.LineSegment(Vector(-31.7, 32, 0), Vector(-27.7, 32, 0)), False)
sketch10.addGeometry(Part.LineSegment(Vector(-27.7, 32, 0), Vector(-27.7, 34, 0)), False)
sketch10.addGeometry(Part.LineSegment(Vector(-27.7, 34, 0), Vector(25.5, 34, 0)), False)
sketch10.addGeometry(Part.LineSegment(Vector(25.5, 34, 0), Vector(25.5, -34.2, 0)), False)
sketch10.addGeometry(Part.LineSegment(Vector(25.5, -34.2, 0), Vector(-27.7, -34.2, 0)), False)
sketch10.addGeometry(Part.LineSegment(Vector(-27.7, -34.2, 0), Vector(-27.7, -32.2, 0)), False)
sketch10.addGeometry(Part.LineSegment(Vector(-27.7, -32.2, 0), Vector(-31.7, -32.2, 0)), False)
sketch10.addGeometry(Part.LineSegment(Vector(-31.7, -32.2, 0), Vector(-31.7, -36.2, 0)), False)
sketch10.addGeometry(Part.LineSegment(Vector(-31.7, -36.2, 0), Vector(27.5, -36.2, 0)), False)
sketch10.addGeometry(Part.LineSegment(Vector(27.5, -36.2, 0), Vector(27.5, 36, 0)), False)
sketch10.addConstraint(Sketcher.Constraint("Coincident", 0, 2, 1, 1))
sketch10.addConstraint(Sketcher.Constraint("Coincident", 1, 2, 2, 1))
sketch10.addConstraint(Sketcher.Constraint("Coincident", 2, 2, 3, 1))
sketch10.addConstraint(Sketcher.Constraint("Coincident", 3, 2, 4, 1))
sketch10.addConstraint(Sketcher.Constraint("Coincident", 4, 2, 5, 1))
sketch10.addConstraint(Sketcher.Constraint("Coincident", 5, 2, 6, 1))
sketch10.addConstraint(Sketcher.Constraint("Coincident", 6, 2, 7, 1))
sketch10.addConstraint(Sketcher.Constraint("Coincident", 7, 2, 8, 1))
sketch10.addConstraint(Sketcher.Constraint("Coincident", 8, 2, 9, 1))
sketch10.addConstraint(Sketcher.Constraint("Coincident", 9, 2, 10, 1))
sketch10.addConstraint(Sketcher.Constraint("Coincident", 10, 2, 11, 1))
sketch10.addConstraint(Sketcher.Constraint("Coincident", 11, 2, 0, 1))
sketch10.addConstraint(Sketcher.Constraint("Horizontal", 0))
sketch10.addConstraint(Sketcher.Constraint("Vertical", 1))
sketch10.addConstraint(Sketcher.Constraint("Horizontal", 2))
sketch10.addConstraint(Sketcher.Constraint("Vertical", 3))
sketch10.addConstraint(Sketcher.Constraint("Horizontal", 4))
sketch10.addConstraint(Sketcher.Constraint("Vertical", 5))
sketch10.addConstraint(Sketcher.Constraint("Horizontal", 6))
sketch10.addConstraint(Sketcher.Constraint("Vertical", 7))
sketch10.addConstraint(Sketcher.Constraint("Horizontal", 8))
sketch10.addConstraint(Sketcher.Constraint("Vertical", 9))
sketch10.addConstraint(Sketcher.Constraint("Horizontal", 10))
sketch10.addConstraint(Sketcher.Constraint("Vertical", 11))
sketch10.addConstraint(Sketcher.Constraint("Vertical", 3, 2, 6, 2))
sketch10.addConstraint(Sketcher.Constraint("Vertical", 1, 2, 8, 2))
sketch10.addConstraint(Sketcher.Constraint("Equal", 8, 1))
sketch10.addConstraint(Sketcher.Constraint("Equal", 3, 7))
sketch10.addConstraint(Sketcher.Constraint("Equal", 1, 9))
sketch10.addConstraint(Sketcher.Constraint("DistanceX", 2, 1, 2, 2, Q("4 mm")))
sketch10.addConstraint(Sketcher.Constraint("DistanceY", 3, 1, 3, 2, Q("2 mm")))
sketch10.addConstraint(Sketcher.Constraint("DistanceX", 0, 2, 0, 1, Q("59.2 mm")))
sketch10.addConstraint(Sketcher.Constraint("DistanceX", 4, 1, 4, 2, Q("53.2 mm")))
sketch10.addConstraint(Sketcher.Constraint("DistanceY", 5, 2, 5, 1, Q("68.2 mm")))
sketch10.addConstraint(Sketcher.Constraint("DistanceY", -1, 1, 0, 2, Q("36.01 mm")))
sketch10.addConstraint(Sketcher.Constraint("DistanceX", 0, 2, -1, 1, Q("31.662614 mm")))
pad7 = doc.addObject("PartDesign::Pad", "Pad006")
body.addObject(pad7)
pad7.Profile = sketch10
pad7.Length = 2
pad7.Reversed = True

# Sketch on XY plane
sketch11 = doc.addObject("Sketcher::SketchObject", "Sketch010")
body.addObject(sketch11)
sketch11.AttachmentSupport = (doc.XY_Plane, [""])
sketch11.MapMode = "FlatFace"
sketch11.AttachmentOffset = App.Placement(Vector(0, 0, 60), App.Rotation())
sketch11.addGeometry(Part.LineSegment(Vector(-31.7, -36.2, 0), Vector(-31.7, -32.2, 0)), False)
sketch11.addGeometry(Part.LineSegment(Vector(-31.7, -32.2, 0), Vector(-29.7, -32.2, 0)), False)
sketch11.addGeometry(Part.LineSegment(Vector(-29.7, -32.2, 0), Vector(-29.7, -36.2, 0)), False)
sketch11.addGeometry(Part.LineSegment(Vector(-29.7, -36.2, 0), Vector(-31.7, -36.2, 0)), False)
sketch11.addGeometry(Part.LineSegment(Vector(-31.7, 32, 0), Vector(-31.7, 36, 0)), False)
sketch11.addGeometry(Part.LineSegment(Vector(-31.7, 36, 0), Vector(-29.7, 36, 0)), False)
sketch11.addGeometry(Part.LineSegment(Vector(-29.7, 36, 0), Vector(-29.7, 32, 0)), False)
sketch11.addGeometry(Part.LineSegment(Vector(-29.7, 32, 0), Vector(-31.7, 32, 0)), False)
sketch11.addConstraint(Sketcher.Constraint("Coincident", 0, 2, 1, 1))
sketch11.addConstraint(Sketcher.Constraint("Coincident", 1, 2, 2, 1))
sketch11.addConstraint(Sketcher.Constraint("Coincident", 2, 2, 3, 1))
sketch11.addConstraint(Sketcher.Constraint("Coincident", 3, 2, 0, 1))
sketch11.addConstraint(Sketcher.Constraint("Coincident", 4, 2, 5, 1))
sketch11.addConstraint(Sketcher.Constraint("Coincident", 5, 2, 6, 1))
sketch11.addConstraint(Sketcher.Constraint("Coincident", 6, 2, 7, 1))
sketch11.addConstraint(Sketcher.Constraint("Coincident", 7, 2, 4, 1))
sketch11.addConstraint(Sketcher.Constraint("Vertical", 0))
sketch11.addConstraint(Sketcher.Constraint("Horizontal", 1))
sketch11.addConstraint(Sketcher.Constraint("Vertical", 2))
sketch11.addConstraint(Sketcher.Constraint("Horizontal", 3))
sketch11.addConstraint(Sketcher.Constraint("Vertical", 4))
sketch11.addConstraint(Sketcher.Constraint("Horizontal", 5))
sketch11.addConstraint(Sketcher.Constraint("Vertical", 6))
sketch11.addConstraint(Sketcher.Constraint("Horizontal", 7))
sketch11.addConstraint(Sketcher.Constraint("Vertical", 3, 2, 4, 2))
sketch11.addConstraint(Sketcher.Constraint("Vertical", 2, 2, 5, 2))
sketch11.addConstraint(Sketcher.Constraint("Equal", 2, 4))
sketch11.addConstraint(Sketcher.Constraint("DistanceX", 1, 1, 1, 2, Q("2 mm")))
sketch11.addConstraint(Sketcher.Constraint("DistanceY", 0, 1, 0, 2, Q("4 mm")))
sketch11.addConstraint(Sketcher.Constraint("DistanceY", 0, 2, 4, 2, Q("68.2 mm")))
sketch11.addConstraint(Sketcher.Constraint("DistanceY", 0, 2, -1, 1, Q("32.19 mm")))
sketch11.addConstraint(Sketcher.Constraint("DistanceX", 0, 2, -1, 1, Q("31.662614 mm")))
pad8 = doc.addObject("PartDesign::Pad", "Pad007")
body.addObject(pad8)
pad8.Profile = sketch11
pad8.Length = 2
pad8.Reversed = True

# Sketch on YZ plane
sketch12 = doc.addObject("Sketcher::SketchObject", "Sketch011")
body.addObject(sketch12)
sketch12.AttachmentSupport = (doc.YZ_Plane, [""])
sketch12.MapMode = "FlatFace"
sketch12.AttachmentOffset = App.Placement(Vector(0, 0, -31.662614), App.Rotation())
sketch12.addGeometry(Part.LineSegment(Vector(11.8, 5, 0), Vector(11.8, -1, 0)), False)
sketch12.addGeometry(Part.LineSegment(Vector(11.8, -1, 0), Vector(5.8, -1, 0)), False)
sketch12.addGeometry(Part.LineSegment(Vector(5.8, -1, 0), Vector(5.8, 5, 0)), False)
sketch12.addGeometry(Part.LineSegment(Vector(5.8, 5, 0), Vector(11.8, 5, 0)), False)
sketch12.addGeometry(Part.Circle(Vector(8.8, 2, 0), Vector(0, 0, 1), 1.2), False)
sketch12.addGeometry(Part.LineSegment(Vector(-28.2, 5, 0), Vector(-28.2, -1, 0)), False)
sketch12.addGeometry(Part.LineSegment(Vector(-28.2, -1, 0), Vector(-34.2, -1, 0)), False)
sketch12.addGeometry(Part.LineSegment(Vector(-34.2, -1, 0), Vector(-34.2, 5, 0)), False)
sketch12.addGeometry(Part.LineSegment(Vector(-34.2, 5, 0), Vector(-28.2, 5, 0)), False)
sketch12.addGeometry(Part.Circle(Vector(-31.2, 2, 0), Vector(0, 0, 1), 1.2), False)
sketch12.addConstraint(Sketcher.Constraint("Coincident", 0, 2, 1, 1))
sketch12.addConstraint(Sketcher.Constraint("Coincident", 1, 2, 2, 1))
sketch12.addConstraint(Sketcher.Constraint("Coincident", 2, 2, 3, 1))
sketch12.addConstraint(Sketcher.Constraint("Coincident", 3, 2, 0, 1))
sketch12.addConstraint(Sketcher.Constraint("Coincident", 5, 2, 6, 1))
sketch12.addConstraint(Sketcher.Constraint("Coincident", 6, 2, 7, 1))
sketch12.addConstraint(Sketcher.Constraint("Coincident", 7, 2, 8, 1))
sketch12.addConstraint(Sketcher.Constraint("Coincident", 8, 2, 5, 1))
sketch12.addConstraint(Sketcher.Constraint("Vertical", 0))
sketch12.addConstraint(Sketcher.Constraint("Horizontal", 1))
sketch12.addConstraint(Sketcher.Constraint("Vertical", 2))
sketch12.addConstraint(Sketcher.Constraint("Horizontal", 3))
sketch12.addConstraint(Sketcher.Constraint("Vertical", 5))
sketch12.addConstraint(Sketcher.Constraint("Horizontal", 6))
sketch12.addConstraint(Sketcher.Constraint("Vertical", 7))
sketch12.addConstraint(Sketcher.Constraint("Horizontal", 8))
sketch12.addConstraint(Sketcher.Constraint("Equal", 4, 9))
sketch12.addConstraint(Sketcher.Constraint("Horizontal", 4, 3, 9, 3))
sketch12.addConstraint(Sketcher.Constraint("Horizontal", 1, 2, 5, 2))
sketch12.addConstraint(Sketcher.Constraint("Horizontal", 3, 2, 7, 2))
sketch12.addConstraint(Sketcher.Constraint("Equal", 3, 6))
sketch12.addConstraint(Sketcher.Constraint("Equal", 8, 0))
sketch12.addConstraint(Sketcher.Constraint("Diameter", 4, Q("2.5 mm")))
sketch12.addConstraint(Sketcher.Constraint("DistanceX", 1, 2, 1, 1, Q("6 mm")))
sketch12.addConstraint(Sketcher.Constraint("DistanceY", -1, 1, 4, 3, Q("2 mm")))
sketch12.addConstraint(Sketcher.Constraint("DistanceY", 0, 2, -1, 1, Q("1 mm")))
sketch12.addConstraint(Sketcher.Constraint("DistanceX", 9, 3, 4, 3, Q("40 mm")))
sketch12.addConstraint(Sketcher.Constraint("DistanceX", 4, 3, 0, 2, Q("3 mm")))
sketch12.addConstraint(Sketcher.Constraint("DistanceX", 9, 3, 5, 2, Q("3 mm")))
sketch12.addConstraint(Sketcher.Constraint("DistanceX", -1, 1, 4, 3, Q("8.81 mm")))
pad9 = doc.addObject("PartDesign::Pad", "Pad008")
body.addObject(pad9)
pad9.Profile = sketch12
pad9.Length = 4

doc.recompute()
